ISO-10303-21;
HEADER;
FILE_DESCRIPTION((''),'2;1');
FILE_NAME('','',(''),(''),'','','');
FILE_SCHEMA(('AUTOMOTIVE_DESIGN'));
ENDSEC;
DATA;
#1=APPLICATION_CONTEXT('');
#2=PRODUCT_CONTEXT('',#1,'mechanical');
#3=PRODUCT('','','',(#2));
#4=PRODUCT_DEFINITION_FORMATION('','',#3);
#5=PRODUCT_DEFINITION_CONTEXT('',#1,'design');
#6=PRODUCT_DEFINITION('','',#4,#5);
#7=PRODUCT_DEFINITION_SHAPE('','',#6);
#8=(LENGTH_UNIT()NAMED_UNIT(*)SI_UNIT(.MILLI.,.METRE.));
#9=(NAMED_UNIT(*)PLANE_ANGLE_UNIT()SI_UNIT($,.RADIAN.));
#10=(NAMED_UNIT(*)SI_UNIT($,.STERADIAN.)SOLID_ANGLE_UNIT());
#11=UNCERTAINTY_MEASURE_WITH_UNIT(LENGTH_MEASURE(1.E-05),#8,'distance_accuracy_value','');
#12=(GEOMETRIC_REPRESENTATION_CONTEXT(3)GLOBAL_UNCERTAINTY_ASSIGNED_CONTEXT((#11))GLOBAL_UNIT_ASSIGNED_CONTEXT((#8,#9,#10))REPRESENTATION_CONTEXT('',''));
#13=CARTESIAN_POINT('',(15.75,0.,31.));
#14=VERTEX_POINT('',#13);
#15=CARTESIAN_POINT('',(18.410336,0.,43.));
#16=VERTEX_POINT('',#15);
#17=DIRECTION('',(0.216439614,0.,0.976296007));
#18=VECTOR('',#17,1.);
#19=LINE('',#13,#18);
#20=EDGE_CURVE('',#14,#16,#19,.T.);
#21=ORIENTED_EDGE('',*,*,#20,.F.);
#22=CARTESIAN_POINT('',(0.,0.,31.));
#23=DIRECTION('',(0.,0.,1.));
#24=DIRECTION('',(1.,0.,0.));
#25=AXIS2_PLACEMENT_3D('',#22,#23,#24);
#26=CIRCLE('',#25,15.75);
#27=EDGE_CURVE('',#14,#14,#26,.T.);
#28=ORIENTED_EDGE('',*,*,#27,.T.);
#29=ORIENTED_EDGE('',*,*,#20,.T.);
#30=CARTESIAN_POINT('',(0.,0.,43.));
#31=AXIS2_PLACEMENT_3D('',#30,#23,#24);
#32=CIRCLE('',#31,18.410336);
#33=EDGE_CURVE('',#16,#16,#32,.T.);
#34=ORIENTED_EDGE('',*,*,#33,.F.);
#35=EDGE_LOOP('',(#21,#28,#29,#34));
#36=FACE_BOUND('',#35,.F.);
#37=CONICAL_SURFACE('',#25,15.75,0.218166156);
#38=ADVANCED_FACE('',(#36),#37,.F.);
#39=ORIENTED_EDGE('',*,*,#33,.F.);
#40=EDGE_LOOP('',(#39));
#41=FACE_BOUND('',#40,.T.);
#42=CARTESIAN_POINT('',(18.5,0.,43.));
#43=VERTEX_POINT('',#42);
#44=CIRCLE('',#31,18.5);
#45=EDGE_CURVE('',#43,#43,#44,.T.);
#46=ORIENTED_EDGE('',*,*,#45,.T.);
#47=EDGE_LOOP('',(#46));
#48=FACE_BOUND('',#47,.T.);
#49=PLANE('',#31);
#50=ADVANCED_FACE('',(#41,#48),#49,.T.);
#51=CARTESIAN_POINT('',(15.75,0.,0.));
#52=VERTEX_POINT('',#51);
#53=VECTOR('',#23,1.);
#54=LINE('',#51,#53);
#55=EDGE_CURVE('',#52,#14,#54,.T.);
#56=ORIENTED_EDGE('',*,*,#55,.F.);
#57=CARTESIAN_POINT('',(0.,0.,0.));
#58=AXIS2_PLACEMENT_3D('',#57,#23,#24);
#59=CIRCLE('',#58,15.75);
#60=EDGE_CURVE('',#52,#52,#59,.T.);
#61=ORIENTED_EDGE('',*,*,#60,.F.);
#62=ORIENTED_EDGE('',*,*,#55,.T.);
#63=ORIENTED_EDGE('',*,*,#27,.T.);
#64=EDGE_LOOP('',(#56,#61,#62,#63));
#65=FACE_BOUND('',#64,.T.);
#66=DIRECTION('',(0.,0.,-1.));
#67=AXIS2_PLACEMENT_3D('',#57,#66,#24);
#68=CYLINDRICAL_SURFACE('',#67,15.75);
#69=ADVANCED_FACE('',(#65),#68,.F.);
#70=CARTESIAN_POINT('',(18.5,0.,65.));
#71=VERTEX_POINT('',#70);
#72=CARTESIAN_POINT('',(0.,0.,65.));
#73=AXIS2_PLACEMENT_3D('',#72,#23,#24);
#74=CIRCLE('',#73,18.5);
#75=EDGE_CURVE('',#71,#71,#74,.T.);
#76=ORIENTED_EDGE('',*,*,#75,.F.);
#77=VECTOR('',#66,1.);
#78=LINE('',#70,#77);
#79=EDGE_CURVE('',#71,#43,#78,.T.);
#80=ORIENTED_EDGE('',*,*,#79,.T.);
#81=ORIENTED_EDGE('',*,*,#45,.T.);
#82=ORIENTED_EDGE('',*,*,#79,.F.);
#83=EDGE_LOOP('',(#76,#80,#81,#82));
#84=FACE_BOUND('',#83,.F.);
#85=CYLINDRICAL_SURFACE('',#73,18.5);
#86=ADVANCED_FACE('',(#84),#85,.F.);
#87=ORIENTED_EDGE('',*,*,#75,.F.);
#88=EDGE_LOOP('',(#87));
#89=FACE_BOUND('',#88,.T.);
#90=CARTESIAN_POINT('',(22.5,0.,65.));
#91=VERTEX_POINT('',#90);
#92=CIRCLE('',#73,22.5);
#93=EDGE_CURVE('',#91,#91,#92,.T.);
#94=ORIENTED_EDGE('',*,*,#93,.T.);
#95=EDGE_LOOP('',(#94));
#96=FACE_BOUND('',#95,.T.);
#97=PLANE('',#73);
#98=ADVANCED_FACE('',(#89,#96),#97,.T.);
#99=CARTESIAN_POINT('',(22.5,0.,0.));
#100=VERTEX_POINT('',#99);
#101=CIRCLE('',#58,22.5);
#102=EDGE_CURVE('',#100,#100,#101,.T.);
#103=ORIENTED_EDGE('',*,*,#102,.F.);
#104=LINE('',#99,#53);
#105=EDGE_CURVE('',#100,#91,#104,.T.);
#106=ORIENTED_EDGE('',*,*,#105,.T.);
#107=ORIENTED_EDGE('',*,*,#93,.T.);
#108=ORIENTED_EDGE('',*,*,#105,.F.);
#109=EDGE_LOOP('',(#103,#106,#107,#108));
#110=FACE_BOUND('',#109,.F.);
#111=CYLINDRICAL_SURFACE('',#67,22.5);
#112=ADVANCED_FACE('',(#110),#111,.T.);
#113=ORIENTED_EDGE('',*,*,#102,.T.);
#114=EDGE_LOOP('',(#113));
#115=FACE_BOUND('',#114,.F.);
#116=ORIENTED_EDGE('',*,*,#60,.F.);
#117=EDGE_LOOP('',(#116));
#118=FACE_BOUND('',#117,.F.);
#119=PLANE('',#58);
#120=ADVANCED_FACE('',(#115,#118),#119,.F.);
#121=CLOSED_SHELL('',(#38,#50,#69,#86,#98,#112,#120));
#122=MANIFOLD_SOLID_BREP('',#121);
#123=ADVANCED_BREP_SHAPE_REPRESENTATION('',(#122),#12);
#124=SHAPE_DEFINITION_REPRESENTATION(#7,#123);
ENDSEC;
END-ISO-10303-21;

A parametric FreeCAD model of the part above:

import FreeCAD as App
import Part
import Sketcher
from FreeCAD import Vector


def edges_at(feature, points):
    """Names of the edges that pass closest to the given points."""
    edges = feature.Shape.Edges
    near = lambda p: min(range(len(edges)), key=lambda i: edges[i].distToShape(Part.Vertex(*p))[0])
    return sorted({f"Edge{near(p) + 1}" for p in points})

doc = App.newDocument("Part")
body = doc.addObject("PartDesign::Body", "Body")

sketch1 = body.newObject("Sketcher::SketchObject", "Sketch")
sketch1.AttachmentSupport = (doc.getObject("XY_Plane"), [""])
sketch1.MapMode = "FlatFace"
sketch1.addGeometry(Part.Circle(Vector(0, 0, 0), Vector(0, 0, 1), 22.5), False)
sketch1.addConstraint([
    Sketcher.Constraint("Coincident", 0, 3, -1, 1),
    Sketcher.Constraint("Diameter", 0, 45.0),
])
pad1 = body.newObject("PartDesign::Pad", "Pad")
pad1.Profile = sketch1
pad1.Length = 65

sketch2 = body.newObject("Sketcher::SketchObject", "Sketch001")
sketch2.AttachmentSupport = (doc.getObject("XY_Plane"), [""])
sketch2.MapMode = "FlatFace"
sketch2.AttachmentOffset = App.Placement(Vector(0, 0, 65), App.Rotation())
sketch2.addGeometry(Part.Circle(Vector(0, 0, 0), Vector(0, 0, 1), 18.5), False)
sketch2.addConstraint([
    Sketcher.Constraint("Coincident", 0, 3, -1, 1),
    Sketcher.Constraint("Diameter", 0, 37.0),
])
pocket1 = body.newObject("PartDesign::Pocket", "Pocket")
pocket1.Profile = sketch2
pocket1.Length = 22

sketch3 = body.newObject("Sketcher::SketchObject", "Sketch002")
sketch3.AttachmentSupport = (doc.getObject("XY_Plane"), [""])
sketch3.MapMode = "FlatFace"
sketch3.addGeometry(Part.Circle(Vector(0, 0, 0), Vector(0, 0, 1), 15.75), False)
sketch3.addConstraint([
    Sketcher.Constraint("Coincident", 0, 3, -1, 1),
    Sketcher.Constraint("Diameter", 0, 31.5),
])
pocket2 = body.newObject("PartDesign::Pocket", "Pocket001")
pocket2.Profile = sketch3
pocket2.Length = 43
pocket2.Reversed = True
doc.recompute()

chamfer = body.newObject("PartDesign::Chamfer", "Chamfer")
chamfer.Base = (pocket2, edges_at(pocket2, [(-15.75, 0, 43)]))
chamfer.ChamferType = "Distance and Angle"
chamfer.Size = 12
chamfer.Angle = 12.5

doc.recompute()
